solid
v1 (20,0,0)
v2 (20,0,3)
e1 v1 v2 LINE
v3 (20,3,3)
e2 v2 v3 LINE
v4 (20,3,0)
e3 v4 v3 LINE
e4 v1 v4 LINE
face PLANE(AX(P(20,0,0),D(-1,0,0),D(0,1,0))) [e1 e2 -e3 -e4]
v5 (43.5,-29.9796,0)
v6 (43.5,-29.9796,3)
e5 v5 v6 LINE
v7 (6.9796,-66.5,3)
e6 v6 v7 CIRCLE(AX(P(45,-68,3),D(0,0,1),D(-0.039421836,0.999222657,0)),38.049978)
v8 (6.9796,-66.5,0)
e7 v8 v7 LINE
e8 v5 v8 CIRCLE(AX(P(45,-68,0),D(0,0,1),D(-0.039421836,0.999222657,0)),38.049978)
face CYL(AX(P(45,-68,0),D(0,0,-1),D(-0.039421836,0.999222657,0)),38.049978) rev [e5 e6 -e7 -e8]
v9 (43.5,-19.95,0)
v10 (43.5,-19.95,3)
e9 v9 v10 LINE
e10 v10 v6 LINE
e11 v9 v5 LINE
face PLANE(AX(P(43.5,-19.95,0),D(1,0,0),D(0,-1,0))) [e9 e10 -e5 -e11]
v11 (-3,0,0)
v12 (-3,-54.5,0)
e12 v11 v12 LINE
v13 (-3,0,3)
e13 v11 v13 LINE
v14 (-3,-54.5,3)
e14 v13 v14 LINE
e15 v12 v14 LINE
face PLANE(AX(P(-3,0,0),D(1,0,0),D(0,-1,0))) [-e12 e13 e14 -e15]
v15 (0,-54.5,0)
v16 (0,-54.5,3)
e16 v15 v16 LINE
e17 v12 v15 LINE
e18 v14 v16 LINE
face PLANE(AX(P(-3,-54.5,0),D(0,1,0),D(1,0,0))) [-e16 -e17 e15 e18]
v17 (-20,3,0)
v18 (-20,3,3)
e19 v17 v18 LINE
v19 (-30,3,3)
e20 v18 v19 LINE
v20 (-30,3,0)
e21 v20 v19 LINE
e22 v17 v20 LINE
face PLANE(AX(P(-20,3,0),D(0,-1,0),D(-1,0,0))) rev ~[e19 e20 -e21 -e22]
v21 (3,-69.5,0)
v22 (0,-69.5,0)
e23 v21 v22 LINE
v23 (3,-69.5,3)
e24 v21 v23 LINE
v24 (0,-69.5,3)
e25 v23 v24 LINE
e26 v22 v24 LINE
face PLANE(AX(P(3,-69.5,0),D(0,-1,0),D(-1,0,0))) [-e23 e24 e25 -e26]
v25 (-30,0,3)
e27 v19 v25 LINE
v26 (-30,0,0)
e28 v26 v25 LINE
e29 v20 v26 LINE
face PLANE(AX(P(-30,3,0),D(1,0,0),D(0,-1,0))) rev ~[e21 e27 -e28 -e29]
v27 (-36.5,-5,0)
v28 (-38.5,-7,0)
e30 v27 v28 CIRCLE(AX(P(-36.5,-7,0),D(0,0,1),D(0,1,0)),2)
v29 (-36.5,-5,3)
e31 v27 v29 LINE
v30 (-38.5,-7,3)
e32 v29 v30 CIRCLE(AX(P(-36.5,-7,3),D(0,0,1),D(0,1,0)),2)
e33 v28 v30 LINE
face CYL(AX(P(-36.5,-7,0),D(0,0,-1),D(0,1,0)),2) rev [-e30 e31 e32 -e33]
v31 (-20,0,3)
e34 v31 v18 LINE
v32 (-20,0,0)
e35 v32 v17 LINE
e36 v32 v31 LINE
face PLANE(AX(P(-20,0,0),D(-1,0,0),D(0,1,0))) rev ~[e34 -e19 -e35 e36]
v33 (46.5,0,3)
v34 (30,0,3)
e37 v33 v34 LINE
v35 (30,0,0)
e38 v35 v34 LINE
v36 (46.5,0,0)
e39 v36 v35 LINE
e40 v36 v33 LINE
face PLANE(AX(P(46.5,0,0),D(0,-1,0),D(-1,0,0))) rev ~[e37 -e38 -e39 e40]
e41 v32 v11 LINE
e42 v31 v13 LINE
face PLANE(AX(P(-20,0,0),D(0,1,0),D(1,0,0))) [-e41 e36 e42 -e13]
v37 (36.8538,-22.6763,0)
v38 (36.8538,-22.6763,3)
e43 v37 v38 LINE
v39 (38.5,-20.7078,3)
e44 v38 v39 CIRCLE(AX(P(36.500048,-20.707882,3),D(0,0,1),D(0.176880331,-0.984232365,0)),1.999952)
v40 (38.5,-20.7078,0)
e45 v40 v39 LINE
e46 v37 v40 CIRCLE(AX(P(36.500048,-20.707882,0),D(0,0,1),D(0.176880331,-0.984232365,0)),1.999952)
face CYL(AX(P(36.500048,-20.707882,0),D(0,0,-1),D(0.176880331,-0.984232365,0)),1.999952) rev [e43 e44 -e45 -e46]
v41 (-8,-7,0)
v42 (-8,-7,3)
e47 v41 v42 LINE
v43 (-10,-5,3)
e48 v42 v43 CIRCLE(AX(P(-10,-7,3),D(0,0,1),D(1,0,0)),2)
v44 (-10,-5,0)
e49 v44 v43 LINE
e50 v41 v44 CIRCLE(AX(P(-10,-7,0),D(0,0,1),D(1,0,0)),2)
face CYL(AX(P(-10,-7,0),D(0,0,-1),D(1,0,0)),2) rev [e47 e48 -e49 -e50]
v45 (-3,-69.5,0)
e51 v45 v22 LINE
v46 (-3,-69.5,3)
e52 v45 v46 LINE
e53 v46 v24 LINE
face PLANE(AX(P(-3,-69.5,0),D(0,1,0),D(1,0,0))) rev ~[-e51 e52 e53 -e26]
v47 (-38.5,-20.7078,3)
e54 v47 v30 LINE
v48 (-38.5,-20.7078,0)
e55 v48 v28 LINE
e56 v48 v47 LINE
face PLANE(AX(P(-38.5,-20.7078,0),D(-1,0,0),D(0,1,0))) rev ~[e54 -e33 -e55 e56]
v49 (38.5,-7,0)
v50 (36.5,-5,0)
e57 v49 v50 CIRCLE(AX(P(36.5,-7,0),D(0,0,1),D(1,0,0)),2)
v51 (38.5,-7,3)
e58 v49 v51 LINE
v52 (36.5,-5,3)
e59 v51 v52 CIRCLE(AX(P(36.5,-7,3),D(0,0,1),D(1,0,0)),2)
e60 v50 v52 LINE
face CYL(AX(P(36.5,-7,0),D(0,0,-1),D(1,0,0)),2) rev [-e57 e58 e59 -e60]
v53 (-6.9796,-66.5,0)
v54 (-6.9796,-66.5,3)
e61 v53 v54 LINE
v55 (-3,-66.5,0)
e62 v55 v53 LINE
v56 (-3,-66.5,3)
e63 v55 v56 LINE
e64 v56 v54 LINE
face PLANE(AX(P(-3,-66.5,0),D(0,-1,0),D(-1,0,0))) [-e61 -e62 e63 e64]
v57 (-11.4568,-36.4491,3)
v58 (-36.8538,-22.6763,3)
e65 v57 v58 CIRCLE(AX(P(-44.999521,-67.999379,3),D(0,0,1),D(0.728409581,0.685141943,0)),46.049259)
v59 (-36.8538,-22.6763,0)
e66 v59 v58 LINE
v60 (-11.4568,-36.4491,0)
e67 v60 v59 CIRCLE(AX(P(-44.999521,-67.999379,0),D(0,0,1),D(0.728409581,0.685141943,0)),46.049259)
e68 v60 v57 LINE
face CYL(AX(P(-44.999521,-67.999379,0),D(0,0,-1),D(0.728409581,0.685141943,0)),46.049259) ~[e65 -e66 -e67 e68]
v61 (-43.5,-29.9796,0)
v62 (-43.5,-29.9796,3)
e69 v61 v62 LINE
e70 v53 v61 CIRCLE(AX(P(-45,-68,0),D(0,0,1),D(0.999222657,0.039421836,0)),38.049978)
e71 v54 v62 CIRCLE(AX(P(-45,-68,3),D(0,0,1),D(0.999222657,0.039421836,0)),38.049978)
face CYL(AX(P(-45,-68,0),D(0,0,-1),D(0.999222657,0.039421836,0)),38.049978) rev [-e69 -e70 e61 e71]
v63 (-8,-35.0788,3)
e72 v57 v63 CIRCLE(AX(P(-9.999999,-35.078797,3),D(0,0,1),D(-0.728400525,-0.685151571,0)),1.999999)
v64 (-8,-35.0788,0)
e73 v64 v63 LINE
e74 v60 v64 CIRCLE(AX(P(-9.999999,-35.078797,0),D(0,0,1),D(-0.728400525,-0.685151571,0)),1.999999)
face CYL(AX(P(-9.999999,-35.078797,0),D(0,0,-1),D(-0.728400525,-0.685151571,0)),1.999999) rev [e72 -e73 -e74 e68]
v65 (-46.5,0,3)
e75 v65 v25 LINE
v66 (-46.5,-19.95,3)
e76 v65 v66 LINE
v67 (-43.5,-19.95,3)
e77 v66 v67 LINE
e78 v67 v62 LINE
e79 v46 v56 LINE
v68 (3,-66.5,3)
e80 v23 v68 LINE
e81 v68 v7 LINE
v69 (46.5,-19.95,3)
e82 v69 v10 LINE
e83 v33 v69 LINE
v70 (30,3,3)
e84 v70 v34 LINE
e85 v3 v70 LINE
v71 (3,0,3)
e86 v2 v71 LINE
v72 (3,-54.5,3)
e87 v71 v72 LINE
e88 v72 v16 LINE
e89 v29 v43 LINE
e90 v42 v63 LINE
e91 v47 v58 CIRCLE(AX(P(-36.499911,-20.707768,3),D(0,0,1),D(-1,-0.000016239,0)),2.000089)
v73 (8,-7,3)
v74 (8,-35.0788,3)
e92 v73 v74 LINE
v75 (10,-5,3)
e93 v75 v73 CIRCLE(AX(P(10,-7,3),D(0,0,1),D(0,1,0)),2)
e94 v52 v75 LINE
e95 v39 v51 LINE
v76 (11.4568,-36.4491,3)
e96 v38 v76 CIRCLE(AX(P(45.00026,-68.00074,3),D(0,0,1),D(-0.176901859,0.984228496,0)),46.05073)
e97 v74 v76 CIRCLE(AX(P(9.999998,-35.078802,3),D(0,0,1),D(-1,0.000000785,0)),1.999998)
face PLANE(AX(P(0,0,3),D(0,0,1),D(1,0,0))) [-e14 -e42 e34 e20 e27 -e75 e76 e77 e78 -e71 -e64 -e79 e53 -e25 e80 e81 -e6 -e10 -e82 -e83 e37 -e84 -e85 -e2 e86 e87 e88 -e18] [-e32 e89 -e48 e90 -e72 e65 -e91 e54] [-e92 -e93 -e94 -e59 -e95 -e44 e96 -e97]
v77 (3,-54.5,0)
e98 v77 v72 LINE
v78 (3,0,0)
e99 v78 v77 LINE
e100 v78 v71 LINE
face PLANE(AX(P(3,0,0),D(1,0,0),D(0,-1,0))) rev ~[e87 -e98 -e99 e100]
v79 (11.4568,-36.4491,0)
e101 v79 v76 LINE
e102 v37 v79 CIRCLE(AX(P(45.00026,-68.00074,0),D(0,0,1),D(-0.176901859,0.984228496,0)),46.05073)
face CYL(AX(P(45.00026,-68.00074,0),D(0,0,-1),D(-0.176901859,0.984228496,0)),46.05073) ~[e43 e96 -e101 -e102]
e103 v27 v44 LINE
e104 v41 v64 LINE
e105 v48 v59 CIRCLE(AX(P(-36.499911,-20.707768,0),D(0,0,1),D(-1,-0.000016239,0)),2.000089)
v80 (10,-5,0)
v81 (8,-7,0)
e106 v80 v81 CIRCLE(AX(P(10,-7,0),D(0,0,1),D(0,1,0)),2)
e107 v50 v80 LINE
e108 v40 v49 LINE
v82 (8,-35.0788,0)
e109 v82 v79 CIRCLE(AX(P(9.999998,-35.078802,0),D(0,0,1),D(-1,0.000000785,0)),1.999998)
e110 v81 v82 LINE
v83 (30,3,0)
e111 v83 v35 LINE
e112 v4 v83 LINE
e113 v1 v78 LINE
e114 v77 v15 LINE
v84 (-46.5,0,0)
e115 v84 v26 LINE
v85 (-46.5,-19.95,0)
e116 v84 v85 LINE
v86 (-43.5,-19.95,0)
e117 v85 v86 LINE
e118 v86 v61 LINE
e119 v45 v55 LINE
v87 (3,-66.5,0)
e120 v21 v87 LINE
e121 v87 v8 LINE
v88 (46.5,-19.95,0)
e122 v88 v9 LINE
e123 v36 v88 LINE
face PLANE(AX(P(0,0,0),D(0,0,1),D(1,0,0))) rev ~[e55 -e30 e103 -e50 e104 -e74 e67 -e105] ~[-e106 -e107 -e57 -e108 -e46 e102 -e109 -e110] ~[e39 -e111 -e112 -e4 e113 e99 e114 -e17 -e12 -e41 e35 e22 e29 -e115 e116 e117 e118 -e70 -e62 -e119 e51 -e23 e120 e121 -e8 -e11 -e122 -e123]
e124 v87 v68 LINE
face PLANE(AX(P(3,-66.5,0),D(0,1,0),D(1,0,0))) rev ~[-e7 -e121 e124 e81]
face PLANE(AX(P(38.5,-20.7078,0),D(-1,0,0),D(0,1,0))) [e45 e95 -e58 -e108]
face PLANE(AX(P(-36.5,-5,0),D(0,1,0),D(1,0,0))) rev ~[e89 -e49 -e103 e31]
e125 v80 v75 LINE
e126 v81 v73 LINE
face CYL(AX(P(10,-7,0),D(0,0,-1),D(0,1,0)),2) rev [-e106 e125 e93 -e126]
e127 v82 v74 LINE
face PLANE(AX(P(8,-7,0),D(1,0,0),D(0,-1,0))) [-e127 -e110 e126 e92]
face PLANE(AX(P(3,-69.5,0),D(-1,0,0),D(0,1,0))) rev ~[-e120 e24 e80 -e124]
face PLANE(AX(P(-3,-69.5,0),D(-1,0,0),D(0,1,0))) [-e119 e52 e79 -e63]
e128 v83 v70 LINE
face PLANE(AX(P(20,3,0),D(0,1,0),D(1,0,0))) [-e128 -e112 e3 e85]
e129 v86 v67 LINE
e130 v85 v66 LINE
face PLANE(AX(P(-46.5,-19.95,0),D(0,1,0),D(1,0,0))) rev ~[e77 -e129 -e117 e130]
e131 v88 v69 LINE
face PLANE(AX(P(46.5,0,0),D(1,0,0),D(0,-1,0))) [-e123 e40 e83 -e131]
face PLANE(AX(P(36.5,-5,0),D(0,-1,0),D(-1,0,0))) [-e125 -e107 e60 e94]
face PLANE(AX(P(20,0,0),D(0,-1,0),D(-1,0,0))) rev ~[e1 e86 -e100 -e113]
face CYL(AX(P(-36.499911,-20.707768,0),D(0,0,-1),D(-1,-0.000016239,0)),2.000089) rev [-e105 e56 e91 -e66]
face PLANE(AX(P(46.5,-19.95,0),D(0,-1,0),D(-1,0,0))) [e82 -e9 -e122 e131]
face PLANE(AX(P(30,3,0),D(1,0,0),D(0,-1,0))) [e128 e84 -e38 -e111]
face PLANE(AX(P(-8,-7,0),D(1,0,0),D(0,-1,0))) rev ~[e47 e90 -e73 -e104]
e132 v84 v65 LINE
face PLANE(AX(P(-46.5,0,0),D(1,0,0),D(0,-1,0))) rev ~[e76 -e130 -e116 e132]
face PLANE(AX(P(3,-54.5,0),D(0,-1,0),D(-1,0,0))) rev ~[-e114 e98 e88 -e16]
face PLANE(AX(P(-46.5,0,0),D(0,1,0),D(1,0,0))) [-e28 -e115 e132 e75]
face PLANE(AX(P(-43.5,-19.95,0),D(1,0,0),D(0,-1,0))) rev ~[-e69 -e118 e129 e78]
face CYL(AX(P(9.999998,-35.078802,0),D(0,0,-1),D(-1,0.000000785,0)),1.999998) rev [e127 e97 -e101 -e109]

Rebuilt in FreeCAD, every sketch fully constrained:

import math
import FreeCAD as App
import Part
import Sketcher
Q = App.Units.Quantity

doc = App.newDocument("Part")
body = doc.addObject("PartDesign::Body", "Body")

# Sketch on XY plane
sketch1 = body.newObject("Sketcher::SketchObject", "Sketch")
sketch1.AttachmentSupport = (doc.getObject("XY_Plane"), [""])
sketch1.MapMode = "FlatFace"
sketch1.addGeometry([
    Part.LineSegment(App.Vector(-30, 0, 0), App.Vector(-46.5, 0, 0)),  # 0
    Part.LineSegment(App.Vector(-46.5, 0, 0), App.Vector(-46.5, -19.95, 0)),  # 1
    Part.LineSegment(App.Vector(-46.5, -19.95, 0), App.Vector(-43.5, -19.95, 0)),  # 2
    Part.LineSegment(App.Vector(-43.5, -19.95, 0), App.Vector(-43.5, -29.9796, 0)),  # 3
    Part.ArcOfCircle(Part.Circle(App.Vector(-45, -68, 0), App.Vector(0, 0, 1), 38.049978), math.radians(2.25929), math.radians(87.74071)),  # 4
    Part.LineSegment(App.Vector(-6.9796, -66.5, 0), App.Vector(-3, -66.5, 0)),  # 5
    Part.LineSegment(App.Vector(-3, -66.5, 0), App.Vector(-3, -69.5, 0)),  # 6
    Part.LineSegment(App.Vector(-3, -69.5, 0), App.Vector(3, -69.5, 0)),  # 7
    Part.LineSegment(App.Vector(3, -69.5, 0), App.Vector(3, -66.5, 0)),  # 8
    Part.LineSegment(App.Vector(3, -66.5, 0), App.Vector(6.9796, -66.5, 0)),  # 9
    Part.ArcOfCircle(Part.Circle(App.Vector(45, -68, 0), App.Vector(0, 0, 1), 38.049978), math.radians(92.25929), math.radians(177.74071)),  # 10
    Part.LineSegment(App.Vector(43.5, -29.9796, 0), App.Vector(43.5, -19.95, 0)),  # 11
    Part.LineSegment(App.Vector(43.5, -19.95, 0), App.Vector(46.5, -19.95, 0)),  # 12
    Part.LineSegment(App.Vector(46.5, -19.95, 0), App.Vector(46.5, 0, 0)),  # 13
    Part.LineSegment(App.Vector(46.5, 0, 0), App.Vector(30, 0, 0)),  # 14
    Part.LineSegment(App.Vector(30, 0, 0), App.Vector(30, 3, 0)),  # 15
    Part.LineSegment(App.Vector(30, 3, 0), App.Vector(20, 3, 0)),  # 16
    Part.LineSegment(App.Vector(20, 3, 0), App.Vector(20, 0, 0)),  # 17
    Part.LineSegment(App.Vector(20, 0, 0), App.Vector(3, 0, 0)),  # 18
    Part.LineSegment(App.Vector(3, 0, 0), App.Vector(3, -54.5, 0)),  # 19
    Part.LineSegment(App.Vector(3, -54.5, 0), App.Vector(-3, -54.5, 0)),  # 20
    Part.LineSegment(App.Vector(-3, -54.5, 0), App.Vector(-3, 0, 0)),  # 21
    Part.LineSegment(App.Vector(-3, 0, 0), App.Vector(-20, 0, 0)),  # 22
    Part.LineSegment(App.Vector(-20, 0, 0), App.Vector(-20, 3, 0)),  # 23
    Part.LineSegment(App.Vector(-20, 3, 0), App.Vector(-30, 3, 0)),  # 24
    Part.LineSegment(App.Vector(-30, 3, 0), App.Vector(-30, 0, 0)),  # 25
    Part.ArcOfCircle(Part.Circle(App.Vector(-36.5, -20.7078, 0), App.Vector(0, 0, 1), 2), math.radians(180), math.radians(259.810969)),  # 26
    Part.LineSegment(App.Vector(-38.5, -20.7078, 0), App.Vector(-38.5, -7, 0)),  # 27
    Part.ArcOfCircle(Part.Circle(App.Vector(-36.5, -7, 0), App.Vector(0, 0, 1), 2), math.radians(90), math.radians(180)),  # 28
    Part.LineSegment(App.Vector(-36.5, -5, 0), App.Vector(-10, -5, 0)),  # 29
    Part.ArcOfCircle(Part.Circle(App.Vector(-10, -7, 0), App.Vector(0, 0, 1), 2), math.radians(0), math.radians(90)),  # 30
    Part.LineSegment(App.Vector(-8, -7, 0), App.Vector(-8, -35.0788, 0)),  # 31
    Part.ArcOfCircle(Part.Circle(App.Vector(-10, -35.0788, 0), App.Vector(0, 0, 1), 1.999997), math.radians(-136.752516), math.radians(0)),  # 32
    Part.ArcOfCircle(Part.Circle(App.Vector(-45, -68, 0), App.Vector(0, 0, 1), 46.050033), math.radians(43.246926), math.radians(79.810801)),  # 33
    Part.LineSegment(App.Vector(38.5, -7, 0), App.Vector(38.5, -20.7078, 0)),  # 34
    Part.ArcOfCircle(Part.Circle(App.Vector(36.5, -20.7078, 0), App.Vector(0, 0, 1), 2.000042), math.radians(-79.810969), math.radians(0)),  # 35
    Part.ArcOfCircle(Part.Circle(App.Vector(45, -68, 0), App.Vector(0, 0, 1), 46.049955), math.radians(100.189199), math.radians(136.753074)),  # 36
    Part.ArcOfCircle(Part.Circle(App.Vector(10, -35.0788, 0), App.Vector(0, 0, 1), 2), math.radians(180), math.radians(316.752516)),  # 37
    Part.LineSegment(App.Vector(8, -35.0788, 0), App.Vector(8, -7, 0)),  # 38
    Part.ArcOfCircle(Part.Circle(App.Vector(10, -7, 0), App.Vector(0, 0, 1), 2), math.radians(90), math.radians(180)),  # 39
    Part.LineSegment(App.Vector(10, -5, 0), App.Vector(36.5, -5, 0)),  # 40
    Part.ArcOfCircle(Part.Circle(App.Vector(36.5, -7, 0), App.Vector(0, 0, 1), 2), math.radians(0), math.radians(90)),  # 41
], False)
sketch1.addConstraint([
    Sketcher.Constraint("Coincident", 0, 2, 1, 1),
    Sketcher.Constraint("Coincident", 1, 2, 2, 1),
    Sketcher.Constraint("Coincident", 2, 2, 3, 1),
    Sketcher.Constraint("Coincident", 3, 2, 4, 2),
    Sketcher.Constraint("Coincident", 4, 1, 5, 1),
    Sketcher.Constraint("Coincident", 5, 2, 6, 1),
    Sketcher.Constraint("Coincident", 6, 2, 7, 1),
    Sketcher.Constraint("Coincident", 7, 2, 8, 1),
    Sketcher.Constraint("Coincident", 8, 2, 9, 1),
    Sketcher.Constraint("Coincident", 9, 2, 10, 2),
    Sketcher.Constraint("Coincident", 10, 1, 11, 1),
    Sketcher.Constraint("Coincident", 11, 2, 12, 1),
    Sketcher.Constraint("Coincident", 12, 2, 13, 1),
    Sketcher.Constraint("Coincident", 13, 2, 14, 1),
    Sketcher.Constraint("Coincident", 14, 2, 15, 1),
    Sketcher.Constraint("Coincident", 15, 2, 16, 1),
    Sketcher.Constraint("Coincident", 16, 2, 17, 1),
    Sketcher.Constraint("Coincident", 17, 2, 18, 1),
    Sketcher.Constraint("Coincident", 18, 2, 19, 1),
    Sketcher.Constraint("Coincident", 19, 2, 20, 1),
    Sketcher.Constraint("Coincident", 20, 2, 21, 1),
    Sketcher.Constraint("Coincident", 21, 2, 22, 1),
    Sketcher.Constraint("Coincident", 22, 2, 23, 1),
    Sketcher.Constraint("Coincident", 23, 2, 24, 1),
    Sketcher.Constraint("Coincident", 24, 2, 25, 1),
    Sketcher.Constraint("Coincident", 25, 2, 0, 1),
    Sketcher.Constraint("Tangent", 26, 1, 27, 1),
    Sketcher.Constraint("Tangent", 27, 2, 28, 2),
    Sketcher.Constraint("Tangent", 28, 1, 29, 1),
    Sketcher.Constraint("Tangent", 29, 2, 30, 2),
    Sketcher.Constraint("Tangent", 30, 1, 31, 1),
    Sketcher.Constraint("Tangent", 31, 2, 32, 2),
    Sketcher.Constraint("Tangent", 32, 1, 33, 1),
    Sketcher.Constraint("Tangent", 33, 2, 26, 2),
    Sketcher.Constraint("Tangent", 34, 2, 35, 2),
    Sketcher.Constraint("Tangent", 35, 1, 36, 1),
    Sketcher.Constraint("Tangent", 36, 2, 37, 2),
    Sketcher.Constraint("Tangent", 37, 1, 38, 1),
    Sketcher.Constraint("Tangent", 38, 2, 39, 2),
    Sketcher.Constraint("Tangent", 39, 1, 40, 1),
    Sketcher.Constraint("Tangent", 40, 2, 41, 2),
    Sketcher.Constraint("Tangent", 41, 1, 34, 1),
    Sketcher.Constraint("Horizontal", 0),
    Sketcher.Constraint("Vertical", 1),
    Sketcher.Constraint("Horizontal", 2),
    Sketcher.Constraint("Vertical", 3),
    Sketcher.Constraint("Horizontal", 5),
    Sketcher.Constraint("Vertical", 6),
    Sketcher.Constraint("Horizontal", 7),
    Sketcher.Constraint("Vertical", 8),
    Sketcher.Constraint("Horizontal", 9),
    Sketcher.Constraint("Vertical", 11),
    Sketcher.Constraint("Horizontal", 12),
    Sketcher.Constraint("Vertical", 13),
    Sketcher.Constraint("Horizontal", 14),
    Sketcher.Constraint("Vertical", 15),
    Sketcher.Constraint("Horizontal", 16),
    Sketcher.Constraint("Vertical", 17),
    Sketcher.Constraint("Horizontal", 18),
    Sketcher.Constraint("Vertical", 19),
    Sketcher.Constraint("Horizontal", 20),
    Sketcher.Constraint("Vertical", 21),
    Sketcher.Constraint("Horizontal", 22),
    Sketcher.Constraint("Vertical", 23),
    Sketcher.Constraint("Horizontal", 24),
    Sketcher.Constraint("Vertical", 25),
    Sketcher.Constraint("Vertical", 27),
    Sketcher.Constraint("Horizontal", 29),
    Sketcher.Constraint("Vertical", 31),
    Sketcher.Constraint("Vertical", 34),
    Sketcher.Constraint("Vertical", 38),
    Sketcher.Constraint("Horizontal", 40),
    Sketcher.Constraint("Coincident", 33, 3, 4, 3),
    Sketcher.Constraint("Coincident", 36, 3, 10, 3),
    Sketcher.Constraint("Equal", 4, 10),
    Sketcher.Constraint("Equal", 26, 28),
    Sketcher.Constraint("Equal", 28, 30),
    Sketcher.Constraint("Equal", 30, 32),
    Sketcher.Constraint("Equal", 32, 35),
    Sketcher.Constraint("Equal", 33, 36),
    Sketcher.Constraint("Equal", 35, 37),
    Sketcher.Constraint("Equal", 37, 39),
    Sketcher.Constraint("Equal", 39, 41),
    Sketcher.Constraint("Symmetric", 0, 2, 13, 2, -1, 1),
    Sketcher.Constraint("Symmetric", 18, 2, 21, 2, -1, 1),
    Sketcher.Constraint("Symmetric", 4, 3, 10, 3, -2),
    Sketcher.Constraint("Symmetric", 30, 3, 39, 3, -2),
    Sketcher.Constraint("Symmetric", 5, 2, 8, 2, -2),
    Sketcher.Constraint("Symmetric", 2, 2, 11, 2, -2),
    Sketcher.Constraint("Symmetric", 17, 2, 22, 2, -2),
    Sketcher.Constraint("Symmetric", 15, 2, 24, 2, -2),
    Sketcher.Constraint("PointOnObject", 0, 2, -1),
    Sketcher.Constraint("Horizontal", 26, 3, 35, 3),
    Sketcher.Constraint("Vertical", 8, 2, 18, 2),
    Sketcher.Constraint("Equal", 12, 6),
    Sketcher.Constraint("Equal", 8, 15),
    Sketcher.Constraint("Radius", 26, Q("2 mm")),
    Sketcher.Constraint("DistanceX", 2, 1, 2, 2, Q("3 mm")),
    Sketcher.Constraint("DistanceX", 16, 2, 16, 1, Q("10 mm")),
    Sketcher.Constraint("DistanceX", 18, 2, 18, 1, Q("17 mm")),
    Sketcher.Constraint("Radius", 4, Q("38.05 mm")),
    Sketcher.Constraint("DistanceX", 0, 2, 0, 1, Q("16.5 mm")),
    Sketcher.Constraint("DistanceX", 4, 3, -1, 1, Q("45 mm")),
    Sketcher.Constraint("DistanceX", 30, 3, -1, 1, Q("10 mm")),
    Sketcher.Constraint("DistanceX", 5, 2, -1, 1, Q("3 mm")),
    Sketcher.Constraint("DistanceY", 28, 1, -1, 1, Q("5 mm")),
    Sketcher.Constraint("DistanceX", 0, 2, 28, 3, Q("10 mm")),
    Sketcher.Constraint("DistanceY", 7, 2, 19, 2, Q("15 mm")),
    Sketcher.Constraint("DistanceY", 1, 2, 1, 1, Q("19.95 mm")),
    Sketcher.Constraint("DistanceY", 6, 2, -1, 1, Q("69.5 mm")),
    Sketcher.Constraint("Radius", 33, Q("46.05 mm")),
    Sketcher.Constraint("DistanceY", 4, 3, -1, 1, Q("68 mm")),
])
pad1 = body.newObject("PartDesign::Pad", "Pad")
pad1.Profile = sketch1
pad1.Length = 3

doc.recompute()
